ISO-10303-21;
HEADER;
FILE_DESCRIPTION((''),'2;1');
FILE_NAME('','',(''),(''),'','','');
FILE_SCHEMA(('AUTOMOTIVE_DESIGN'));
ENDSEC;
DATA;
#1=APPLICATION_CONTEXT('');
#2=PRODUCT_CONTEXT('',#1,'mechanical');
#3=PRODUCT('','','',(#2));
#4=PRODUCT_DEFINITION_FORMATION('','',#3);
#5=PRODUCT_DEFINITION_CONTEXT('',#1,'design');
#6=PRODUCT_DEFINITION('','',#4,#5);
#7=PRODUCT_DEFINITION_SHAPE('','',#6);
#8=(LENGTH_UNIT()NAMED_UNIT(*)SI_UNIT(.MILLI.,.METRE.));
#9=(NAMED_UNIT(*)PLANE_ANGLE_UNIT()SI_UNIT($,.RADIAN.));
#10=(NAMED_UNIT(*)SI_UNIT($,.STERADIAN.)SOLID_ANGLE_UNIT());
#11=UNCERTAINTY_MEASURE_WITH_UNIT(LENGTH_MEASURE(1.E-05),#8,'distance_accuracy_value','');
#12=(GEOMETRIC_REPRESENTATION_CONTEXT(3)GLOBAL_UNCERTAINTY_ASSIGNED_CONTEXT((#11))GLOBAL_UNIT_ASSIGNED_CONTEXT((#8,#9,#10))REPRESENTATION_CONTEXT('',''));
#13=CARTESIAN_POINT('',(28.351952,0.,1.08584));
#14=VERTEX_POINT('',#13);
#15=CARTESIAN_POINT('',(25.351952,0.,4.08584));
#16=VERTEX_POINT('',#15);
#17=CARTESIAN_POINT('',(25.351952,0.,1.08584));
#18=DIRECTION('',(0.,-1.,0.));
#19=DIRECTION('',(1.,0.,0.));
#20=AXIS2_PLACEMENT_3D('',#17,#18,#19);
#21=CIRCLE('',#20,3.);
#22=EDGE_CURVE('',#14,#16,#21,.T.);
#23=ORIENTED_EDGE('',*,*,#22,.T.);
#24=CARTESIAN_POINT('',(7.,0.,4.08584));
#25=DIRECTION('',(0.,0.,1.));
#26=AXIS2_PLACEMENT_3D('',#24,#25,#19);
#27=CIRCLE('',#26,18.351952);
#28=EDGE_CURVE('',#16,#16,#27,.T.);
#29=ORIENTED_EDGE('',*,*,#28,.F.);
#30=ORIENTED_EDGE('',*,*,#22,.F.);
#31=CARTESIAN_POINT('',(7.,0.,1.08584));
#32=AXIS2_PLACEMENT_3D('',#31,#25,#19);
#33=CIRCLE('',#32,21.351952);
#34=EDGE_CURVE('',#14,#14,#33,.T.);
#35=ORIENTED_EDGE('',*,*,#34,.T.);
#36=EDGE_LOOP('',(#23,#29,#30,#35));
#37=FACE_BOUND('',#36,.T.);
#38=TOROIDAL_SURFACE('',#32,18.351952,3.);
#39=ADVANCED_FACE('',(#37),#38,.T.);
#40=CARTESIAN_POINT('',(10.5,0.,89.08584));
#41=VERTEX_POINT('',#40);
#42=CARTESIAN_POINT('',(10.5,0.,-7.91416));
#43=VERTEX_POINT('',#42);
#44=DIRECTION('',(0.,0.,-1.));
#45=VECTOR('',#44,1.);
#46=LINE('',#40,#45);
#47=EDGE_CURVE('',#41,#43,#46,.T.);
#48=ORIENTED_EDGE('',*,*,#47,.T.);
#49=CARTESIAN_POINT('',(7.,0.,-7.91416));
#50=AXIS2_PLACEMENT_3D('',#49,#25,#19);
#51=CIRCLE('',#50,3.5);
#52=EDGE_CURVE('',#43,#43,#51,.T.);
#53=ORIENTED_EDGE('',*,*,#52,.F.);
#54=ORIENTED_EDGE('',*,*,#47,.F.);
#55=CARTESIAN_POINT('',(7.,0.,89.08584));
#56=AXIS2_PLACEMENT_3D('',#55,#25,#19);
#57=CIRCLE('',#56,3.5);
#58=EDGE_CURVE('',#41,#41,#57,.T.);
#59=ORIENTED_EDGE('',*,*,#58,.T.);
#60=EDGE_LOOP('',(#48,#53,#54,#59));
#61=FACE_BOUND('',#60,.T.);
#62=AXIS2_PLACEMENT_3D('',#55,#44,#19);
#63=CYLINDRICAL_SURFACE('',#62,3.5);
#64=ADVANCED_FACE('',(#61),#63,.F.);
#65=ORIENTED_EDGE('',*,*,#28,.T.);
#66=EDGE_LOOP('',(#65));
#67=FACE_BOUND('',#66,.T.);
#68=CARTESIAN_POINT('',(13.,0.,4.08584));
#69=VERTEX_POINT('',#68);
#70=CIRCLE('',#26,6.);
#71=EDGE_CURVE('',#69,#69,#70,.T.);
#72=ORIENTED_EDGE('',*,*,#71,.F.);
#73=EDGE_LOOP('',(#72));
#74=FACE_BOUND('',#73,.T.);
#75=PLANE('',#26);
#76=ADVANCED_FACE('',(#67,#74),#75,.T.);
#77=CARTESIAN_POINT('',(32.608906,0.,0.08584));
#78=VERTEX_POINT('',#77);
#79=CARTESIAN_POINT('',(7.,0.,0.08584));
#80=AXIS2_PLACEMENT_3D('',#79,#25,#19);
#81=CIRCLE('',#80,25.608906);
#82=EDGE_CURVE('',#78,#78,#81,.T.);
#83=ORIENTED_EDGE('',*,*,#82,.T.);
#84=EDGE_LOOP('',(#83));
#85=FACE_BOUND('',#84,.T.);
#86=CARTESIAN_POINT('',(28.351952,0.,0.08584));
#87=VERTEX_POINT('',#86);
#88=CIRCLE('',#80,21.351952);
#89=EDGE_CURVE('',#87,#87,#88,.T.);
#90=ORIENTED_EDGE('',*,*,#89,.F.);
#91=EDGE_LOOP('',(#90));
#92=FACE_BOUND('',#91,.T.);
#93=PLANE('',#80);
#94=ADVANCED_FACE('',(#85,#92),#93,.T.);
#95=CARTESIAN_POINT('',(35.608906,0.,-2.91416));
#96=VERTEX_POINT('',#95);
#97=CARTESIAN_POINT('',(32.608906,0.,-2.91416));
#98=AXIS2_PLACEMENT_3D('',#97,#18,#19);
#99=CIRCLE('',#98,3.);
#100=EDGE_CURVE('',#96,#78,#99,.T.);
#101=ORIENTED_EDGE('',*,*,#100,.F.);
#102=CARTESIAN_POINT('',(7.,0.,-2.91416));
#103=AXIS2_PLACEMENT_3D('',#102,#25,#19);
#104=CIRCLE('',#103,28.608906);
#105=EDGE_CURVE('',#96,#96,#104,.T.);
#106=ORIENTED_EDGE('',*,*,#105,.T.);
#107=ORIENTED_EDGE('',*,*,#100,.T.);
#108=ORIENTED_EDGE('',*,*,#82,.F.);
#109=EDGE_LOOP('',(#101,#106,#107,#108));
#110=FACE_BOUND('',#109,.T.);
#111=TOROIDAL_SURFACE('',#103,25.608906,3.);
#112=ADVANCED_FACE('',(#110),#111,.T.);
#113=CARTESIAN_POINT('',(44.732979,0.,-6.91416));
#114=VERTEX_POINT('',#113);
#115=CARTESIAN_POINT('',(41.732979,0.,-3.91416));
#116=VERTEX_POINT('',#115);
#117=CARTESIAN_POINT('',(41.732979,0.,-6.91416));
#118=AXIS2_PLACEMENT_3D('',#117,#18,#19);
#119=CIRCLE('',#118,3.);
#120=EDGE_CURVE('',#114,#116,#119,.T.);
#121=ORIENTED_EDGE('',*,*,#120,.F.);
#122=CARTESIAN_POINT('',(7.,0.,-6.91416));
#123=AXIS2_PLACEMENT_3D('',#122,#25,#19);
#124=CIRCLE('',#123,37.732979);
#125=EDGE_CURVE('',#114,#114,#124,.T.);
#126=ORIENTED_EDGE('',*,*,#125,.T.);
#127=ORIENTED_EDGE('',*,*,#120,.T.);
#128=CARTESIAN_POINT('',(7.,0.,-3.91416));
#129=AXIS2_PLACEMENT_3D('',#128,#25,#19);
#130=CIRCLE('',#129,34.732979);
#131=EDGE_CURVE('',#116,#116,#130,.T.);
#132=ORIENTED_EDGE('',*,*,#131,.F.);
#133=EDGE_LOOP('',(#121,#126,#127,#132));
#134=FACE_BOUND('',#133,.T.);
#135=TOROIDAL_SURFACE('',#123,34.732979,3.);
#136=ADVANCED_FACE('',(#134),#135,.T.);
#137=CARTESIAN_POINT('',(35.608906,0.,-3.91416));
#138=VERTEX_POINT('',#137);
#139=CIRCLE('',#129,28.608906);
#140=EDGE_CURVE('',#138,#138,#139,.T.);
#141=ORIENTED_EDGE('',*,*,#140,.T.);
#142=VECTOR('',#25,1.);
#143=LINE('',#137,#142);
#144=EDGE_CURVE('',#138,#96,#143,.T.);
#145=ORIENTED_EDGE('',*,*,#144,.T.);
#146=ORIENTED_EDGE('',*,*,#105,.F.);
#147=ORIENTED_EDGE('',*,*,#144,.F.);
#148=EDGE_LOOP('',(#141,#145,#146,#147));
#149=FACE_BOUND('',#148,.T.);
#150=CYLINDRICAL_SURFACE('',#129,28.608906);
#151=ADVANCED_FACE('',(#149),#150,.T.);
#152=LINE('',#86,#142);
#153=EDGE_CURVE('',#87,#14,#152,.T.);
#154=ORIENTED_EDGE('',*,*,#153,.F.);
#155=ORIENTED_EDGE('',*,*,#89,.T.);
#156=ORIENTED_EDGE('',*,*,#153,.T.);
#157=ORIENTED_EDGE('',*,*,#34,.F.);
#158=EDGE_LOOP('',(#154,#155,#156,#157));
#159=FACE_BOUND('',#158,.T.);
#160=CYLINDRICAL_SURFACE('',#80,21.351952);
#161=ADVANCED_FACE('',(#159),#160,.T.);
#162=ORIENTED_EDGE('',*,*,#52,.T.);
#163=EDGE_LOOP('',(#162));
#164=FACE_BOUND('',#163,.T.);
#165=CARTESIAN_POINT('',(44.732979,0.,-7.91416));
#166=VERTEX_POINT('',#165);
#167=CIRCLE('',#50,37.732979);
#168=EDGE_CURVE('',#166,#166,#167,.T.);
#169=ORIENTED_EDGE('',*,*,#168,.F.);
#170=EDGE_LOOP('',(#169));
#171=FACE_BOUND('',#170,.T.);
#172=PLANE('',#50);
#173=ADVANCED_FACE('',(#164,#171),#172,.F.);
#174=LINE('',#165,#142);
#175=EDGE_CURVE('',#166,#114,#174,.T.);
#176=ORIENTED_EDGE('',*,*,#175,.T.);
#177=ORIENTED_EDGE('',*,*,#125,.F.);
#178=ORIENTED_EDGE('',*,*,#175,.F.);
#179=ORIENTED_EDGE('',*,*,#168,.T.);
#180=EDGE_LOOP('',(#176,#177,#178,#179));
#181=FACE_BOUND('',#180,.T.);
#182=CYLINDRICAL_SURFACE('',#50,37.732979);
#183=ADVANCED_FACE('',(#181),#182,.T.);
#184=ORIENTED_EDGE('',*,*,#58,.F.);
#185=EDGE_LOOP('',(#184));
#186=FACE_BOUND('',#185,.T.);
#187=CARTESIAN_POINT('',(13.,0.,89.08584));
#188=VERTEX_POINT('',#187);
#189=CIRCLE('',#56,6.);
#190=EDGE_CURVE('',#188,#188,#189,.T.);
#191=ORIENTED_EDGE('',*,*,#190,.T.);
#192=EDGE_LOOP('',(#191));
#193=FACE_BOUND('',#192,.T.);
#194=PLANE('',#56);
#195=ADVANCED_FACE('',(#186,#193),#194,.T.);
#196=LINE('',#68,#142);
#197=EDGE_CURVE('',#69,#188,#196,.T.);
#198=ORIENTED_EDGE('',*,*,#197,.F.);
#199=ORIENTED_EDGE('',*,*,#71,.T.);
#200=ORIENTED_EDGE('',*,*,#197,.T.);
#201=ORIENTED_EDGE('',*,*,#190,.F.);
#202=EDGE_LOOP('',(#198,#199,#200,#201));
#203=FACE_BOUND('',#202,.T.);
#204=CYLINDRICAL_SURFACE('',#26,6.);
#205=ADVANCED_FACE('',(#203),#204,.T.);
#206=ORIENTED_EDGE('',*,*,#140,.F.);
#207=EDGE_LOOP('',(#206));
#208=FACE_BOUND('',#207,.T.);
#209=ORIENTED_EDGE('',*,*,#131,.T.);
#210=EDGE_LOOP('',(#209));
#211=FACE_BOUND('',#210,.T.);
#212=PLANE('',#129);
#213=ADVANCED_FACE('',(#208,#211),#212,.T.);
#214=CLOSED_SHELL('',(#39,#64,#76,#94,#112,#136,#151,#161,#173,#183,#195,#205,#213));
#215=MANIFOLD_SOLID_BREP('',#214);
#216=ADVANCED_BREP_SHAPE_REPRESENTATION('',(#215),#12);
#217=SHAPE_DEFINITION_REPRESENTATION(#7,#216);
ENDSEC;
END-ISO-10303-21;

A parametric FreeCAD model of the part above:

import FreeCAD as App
import Part
import Sketcher
from FreeCAD import Vector
Q = App.Units.Quantity


def edges_at(feature, points):
    """Names of the edges that pass closest to the given points."""
    edges = feature.Shape.Edges
    near = lambda p: min(range(len(edges)), key=lambda i: edges[i].distToShape(Part.Vertex(*p))[0])
    return sorted({f"Edge{near(p) + 1}" for p in points})


def add_polygon(sketch, points):
    """Adds a closed chain of lines whose ends are joined by coincident constraints."""
    first, n = sketch.GeometryCount, len(points)
    for a, b in zip(points, points[1:] + points[:1]):
        sketch.addGeometry(Part.LineSegment(App.Vector(*a, 0), App.Vector(*b, 0)), False)
    for i in range(n):
        sketch.addConstraint(Sketcher.Constraint("Coincident", first + i, 2, first + (i + 1) % n, 1))

doc = App.newDocument("Part")
body = doc.addObject("PartDesign::Body", "Body")

# Sketch on XZ plane
sketch1 = body.newObject("Sketcher::SketchObject", "Sketch")
sketch1.AttachmentSupport = (doc.getObject("XZ_Plane"), [""])
sketch1.MapMode = "FlatFace"
add_polygon(sketch1, [(44.732979, -7.91416), (44.732979, -3.91416), (35.608906, -3.91416), (35.608906, 0.08584), (28.351952, 0.08584), (28.351952, 4.08584), (13, 4.08584), (13, 89.08584), (10.5, 89.08584), (10.5, -7.91416)])  # lines 0-9
sketch1.addGeometry(Part.LineSegment(Vector(7, -7.91416, 0), Vector(7, 89.08584, 0)), True)  # axis
sketch1.addConstraint(Sketcher.Constraint("Vertical", 0))
sketch1.addConstraint(Sketcher.Constraint("Horizontal", 1))
sketch1.addConstraint(Sketcher.Constraint("Vertical", 2))
sketch1.addConstraint(Sketcher.Constraint("Horizontal", 3))
sketch1.addConstraint(Sketcher.Constraint("Vertical", 4))
sketch1.addConstraint(Sketcher.Constraint("Horizontal", 5))
sketch1.addConstraint(Sketcher.Constraint("Vertical", 6))
sketch1.addConstraint(Sketcher.Constraint("Horizontal", 7))
sketch1.addConstraint(Sketcher.Constraint("Vertical", 8))
sketch1.addConstraint(Sketcher.Constraint("Horizontal", 9))
sketch1.addConstraint(Sketcher.Constraint("Vertical", 10))
sketch1.addConstraint(Sketcher.Constraint("Horizontal", 9, 2, 10, 1))
sketch1.addConstraint(Sketcher.Constraint("Horizontal", 7, 2, 10, 2))
sketch1.addConstraint(Sketcher.Constraint("Equal", 0, 2))
sketch1.addConstraint(Sketcher.Constraint("Equal", 2, 4))
sketch1.addConstraint(Sketcher.Constraint("DistanceY", 0, 1, 0, 2, Q("4 mm")))
sketch1.addConstraint(Sketcher.Constraint("DistanceY", 6, 1, 6, 2, Q("85 mm")))
sketch1.addConstraint(Sketcher.Constraint("DistanceX", 7, 2, 7, 1, Q("2.5 mm")))
sketch1.addConstraint(Sketcher.Constraint("DistanceX", -1, 1, 5, 2, Q("13 mm")))
sketch1.addConstraint(Sketcher.Constraint("DistanceX", -1, 1, 10, 1, Q("7 mm")))
sketch1.addConstraint(Sketcher.Constraint("DistanceX", 9, 1, 9, 2, Q("34.232979 mm")))
sketch1.addConstraint(Sketcher.Constraint("DistanceX", 1, 2, 1, 1, Q("9.124073 mm")))
sketch1.addConstraint(Sketcher.Constraint("DistanceX", 3, 2, 3, 1, Q("7.256954 mm")))
sketch1.addConstraint(Sketcher.Constraint("DistanceY", 0, 2, -1, 1, Q("3.91416 mm")))
revolution = body.newObject("PartDesign::Revolution", "Revolution")
revolution.Profile = sketch1
revolution.ReferenceAxis = (sketch1, ["Axis0"])
revolution.Angle = 360
doc.recompute()

fillet = body.newObject("PartDesign::Fillet", "Fillet")
fillet.Base = (revolution, edges_at(revolution, [(-14.352, 0, 4.086), (-21.609, 0, 0.086), (-30.733, 0, -3.914)]))
fillet.Radius = 3

doc.recompute()
